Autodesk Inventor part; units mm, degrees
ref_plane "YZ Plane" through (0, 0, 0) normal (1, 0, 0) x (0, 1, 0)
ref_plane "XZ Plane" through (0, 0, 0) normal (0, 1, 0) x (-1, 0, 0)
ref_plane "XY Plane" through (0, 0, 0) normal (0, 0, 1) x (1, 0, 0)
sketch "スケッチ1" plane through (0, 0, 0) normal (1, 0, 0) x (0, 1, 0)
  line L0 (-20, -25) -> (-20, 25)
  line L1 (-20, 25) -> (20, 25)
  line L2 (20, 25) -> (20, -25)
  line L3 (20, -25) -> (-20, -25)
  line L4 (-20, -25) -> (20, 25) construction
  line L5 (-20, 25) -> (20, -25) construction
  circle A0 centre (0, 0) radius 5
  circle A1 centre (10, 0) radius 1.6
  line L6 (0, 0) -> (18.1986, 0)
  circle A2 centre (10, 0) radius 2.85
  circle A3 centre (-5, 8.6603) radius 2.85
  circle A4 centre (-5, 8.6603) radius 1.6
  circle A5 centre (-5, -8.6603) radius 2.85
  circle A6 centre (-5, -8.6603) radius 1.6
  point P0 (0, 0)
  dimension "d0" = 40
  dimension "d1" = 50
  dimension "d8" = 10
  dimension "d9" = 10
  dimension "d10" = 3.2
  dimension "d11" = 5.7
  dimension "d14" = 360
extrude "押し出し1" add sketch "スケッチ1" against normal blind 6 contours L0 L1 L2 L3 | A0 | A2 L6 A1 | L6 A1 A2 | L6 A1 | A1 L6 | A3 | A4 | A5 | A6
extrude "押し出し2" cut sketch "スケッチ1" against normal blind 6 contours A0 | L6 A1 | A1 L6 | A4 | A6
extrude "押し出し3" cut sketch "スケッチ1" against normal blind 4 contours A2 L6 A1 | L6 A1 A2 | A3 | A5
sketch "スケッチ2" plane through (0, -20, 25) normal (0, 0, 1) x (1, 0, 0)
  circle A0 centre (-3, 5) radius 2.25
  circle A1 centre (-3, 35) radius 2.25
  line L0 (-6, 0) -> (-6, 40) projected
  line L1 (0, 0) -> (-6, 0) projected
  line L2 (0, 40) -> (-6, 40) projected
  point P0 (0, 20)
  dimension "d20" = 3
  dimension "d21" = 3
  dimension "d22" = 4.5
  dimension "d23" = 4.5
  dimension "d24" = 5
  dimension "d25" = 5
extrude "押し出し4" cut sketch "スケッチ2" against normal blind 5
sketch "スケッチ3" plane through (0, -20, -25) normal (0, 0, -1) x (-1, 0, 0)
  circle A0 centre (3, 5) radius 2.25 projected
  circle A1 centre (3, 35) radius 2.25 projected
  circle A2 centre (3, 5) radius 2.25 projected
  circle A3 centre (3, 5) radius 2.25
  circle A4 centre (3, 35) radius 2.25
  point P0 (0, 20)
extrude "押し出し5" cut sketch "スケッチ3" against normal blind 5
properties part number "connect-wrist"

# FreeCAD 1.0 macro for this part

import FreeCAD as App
import Part
import Sketcher

V = App.Vector
Q = App.Units.Quantity

doc = App.newDocument("Part")
params = doc.addObject("Spreadsheet::Sheet", "Params")
for row, (alias, value) in enumerate([
    ("sketch1_width", "40 mm"),
    ("sketch1_height", "50 mm"),
    ("pad1_length", "6 mm"),
    ("sketch2_diameter", "10 mm"),
    ("sketch2_diameter2", "3.2 mm"),
    ("pocket1_length", "6 mm"),
    ("sketch3_diameter", "5.7 mm"),
    ("sketch3_diameter2", "3.2 mm"),
    ("pocket2_length", "4 mm"),
    ("sketch4_diameter", "4.5 mm"),
    ("pocket3_length", "5 mm"),
    ("sketch5_diameter", "4.5 mm"),
    ("pocket4_length", "5 mm"),
], start=1):
    params.set(f"A{row}", alias)
    params.set(f"B{row}", "=" + value)
    params.setAlias(f"B{row}", alias)

body = doc.addObject("PartDesign::Body", "Body")

# Sketch on YZ plane
sketch1 = body.newObject("Sketcher::SketchObject", "Sketch")
sketch1.AttachmentSupport = (doc.getObject("YZ_Plane"), [""])
sketch1.MapMode = "FlatFace"
sketch1.addGeometry(Part.LineSegment(V(-20, 25, 0), V(-20, -25, 0)), False)
sketch1.addGeometry(Part.LineSegment(V(-20, -25, 0), V(20, -25, 0)), False)
sketch1.addGeometry(Part.LineSegment(V(20, -25, 0), V(20, 25, 0)), False)
sketch1.addGeometry(Part.LineSegment(V(20, 25, 0), V(-20, 25, 0)), False)
sketch1.addConstraint(Sketcher.Constraint("Coincident", 0, 2, 1, 1))
sketch1.addConstraint(Sketcher.Constraint("Coincident", 1, 2, 2, 1))
sketch1.addConstraint(Sketcher.Constraint("Coincident", 2, 2, 3, 1))
sketch1.addConstraint(Sketcher.Constraint("Coincident", 3, 2, 0, 1))
sketch1.addConstraint(Sketcher.Constraint("Vertical", 0))
sketch1.addConstraint(Sketcher.Constraint("Horizontal", 1))
sketch1.addConstraint(Sketcher.Constraint("Vertical", 2))
sketch1.addConstraint(Sketcher.Constraint("Horizontal", 3))
sketch1.addConstraint(Sketcher.Constraint("Symmetric", 0, 2, 2, 2, -1, 1))
sketch1.addConstraint(Sketcher.Constraint("DistanceX", 1, 1, 1, 2, Q("40 mm")))
sketch1.addConstraint(Sketcher.Constraint("DistanceY", 0, 2, 0, 1, Q("50 mm")))
sketch1.setExpression("Constraints[9]", "Params.sketch1_width")
sketch1.setExpression("Constraints[10]", "Params.sketch1_height")
pad1 = body.newObject("PartDesign::Pad", "Pad")
pad1.Profile = sketch1
pad1.setExpression("Length", "Params.pad1_length")
pad1.Reversed = True

# Sketch on YZ plane
sketch2 = body.newObject("Sketcher::SketchObject", "Sketch001")
sketch2.AttachmentSupport = (doc.getObject("YZ_Plane"), [""])
sketch2.MapMode = "FlatFace"
sketch2.addGeometry(Part.Circle(V(0, 0, 0), V(0, 0, 1), 5), False)
sketch2.addGeometry(Part.Circle(V(10, 0, 0), V(0, 0, 1), 1.6), False)
sketch2.addGeometry(Part.Circle(V(-5, 8.7, 0), V(0, 0, 1), 1.6), False)
sketch2.addGeometry(Part.Circle(V(-5, -8.7, 0), V(0, 0, 1), 1.6), False)
sketch2.addConstraint(Sketcher.Constraint("Coincident", 0, 3, -1, 1))
sketch2.addConstraint(Sketcher.Constraint("Equal", 1, 2))
sketch2.addConstraint(Sketcher.Constraint("Equal", 2, 3))
sketch2.addConstraint(Sketcher.Constraint("Symmetric", 2, 3, 3, 3, -1))
sketch2.addConstraint(Sketcher.Constraint("PointOnObject", 1, 3, -1))
sketch2.addConstraint(Sketcher.Constraint("Diameter", 0, Q("10 mm")))
sketch2.addConstraint(Sketcher.Constraint("Diameter", 1, Q("3.2 mm")))
sketch2.addConstraint(Sketcher.Constraint("DistanceX", -1, 1, 1, 3, Q("10 mm")))
sketch2.addConstraint(Sketcher.Constraint("DistanceX", 2, 3, -1, 1, Q("5 mm")))
sketch2.addConstraint(Sketcher.Constraint("DistanceY", -1, 1, 2, 3, Q("8.6603 mm")))
sketch2.setExpression("Constraints[5]", "Params.sketch2_diameter")
sketch2.setExpression("Constraints[6]", "Params.sketch2_diameter2")
pocket1 = body.newObject("PartDesign::Pocket", "Pocket")
pocket1.Profile = sketch2
pocket1.setExpression("Length", "Params.pocket1_length")

# Sketch on YZ plane
sketch3 = body.newObject("Sketcher::SketchObject", "Sketch002")
sketch3.AttachmentSupport = (doc.getObject("YZ_Plane"), [""])
sketch3.MapMode = "FlatFace"
sketch3.addGeometry(Part.Circle(V(10, 0, 0), V(0, 0, 1), 2.9), False)
sketch3.addGeometry(Part.Circle(V(10, 0, 0), V(0, 0, 1), 1.6), False)
sketch3.addGeometry(Part.Circle(V(-5, 8.7, 0), V(0, 0, 1), 2.9), False)
sketch3.addGeometry(Part.Circle(V(-5, 8.7, 0), V(0, 0, 1), 1.6), False)
sketch3.addGeometry(Part.Circle(V(-5, -8.7, 0), V(0, 0, 1), 2.9), False)
sketch3.addGeometry(Part.Circle(V(-5, -8.7, 0), V(0, 0, 1), 1.6), False)
sketch3.addConstraint(Sketcher.Constraint("Coincident", 1, 3, 0, 3))
sketch3.addConstraint(Sketcher.Constraint("Coincident", 3, 3, 2, 3))
sketch3.addConstraint(Sketcher.Constraint("Coincident", 5, 3, 4, 3))
sketch3.addConstraint(Sketcher.Constraint("Equal", 0, 2))
sketch3.addConstraint(Sketcher.Constraint("Equal", 1, 3))
sketch3.addConstraint(Sketcher.Constraint("Equal", 2, 4))
sketch3.addConstraint(Sketcher.Constraint("Equal", 3, 5))
sketch3.addConstraint(Sketcher.Constraint("Symmetric", 2, 3, 4, 3, -1))
sketch3.addConstraint(Sketcher.Constraint("PointOnObject", 0, 3, -1))
sketch3.addConstraint(Sketcher.Constraint("Diameter", 0, Q("5.7 mm")))
sketch3.addConstraint(Sketcher.Constraint("Diameter", 1, Q("3.2 mm")))
sketch3.addConstraint(Sketcher.Constraint("DistanceX", -1, 1, 0, 3, Q("10 mm")))
sketch3.addConstraint(Sketcher.Constraint("DistanceX", 2, 3, -1, 1, Q("5 mm")))
sketch3.addConstraint(Sketcher.Constraint("DistanceY", -1, 1, 2, 3, Q("8.6603 mm")))
sketch3.setExpression("Constraints[9]", "Params.sketch3_diameter")
sketch3.setExpression("Constraints[10]", "Params.sketch3_diameter2")
pocket2 = body.newObject("PartDesign::Pocket", "Pocket001")
pocket2.Profile = sketch3
pocket2.setExpression("Length", "Params.pocket2_length")

# Sketch on XY plane
sketch4 = body.newObject("Sketcher::SketchObject", "Sketch003")
sketch4.AttachmentSupport = (doc.getObject("XY_Plane"), [""])
sketch4.MapMode = "FlatFace"
sketch4.AttachmentOffset = App.Placement(V(0, 0, 25), App.Rotation())
sketch4.addGeometry(Part.Circle(V(-3, -15, 0), V(0, 0, 1), 2.2), False)
sketch4.addGeometry(Part.Circle(V(-3, 15, 0), V(0, 0, 1), 2.2), False)
sketch4.addConstraint(Sketcher.Constraint("Equal", 0, 1))
sketch4.addConstraint(Sketcher.Constraint("Symmetric", 0, 3, 1, 3, -1))
sketch4.addConstraint(Sketcher.Constraint("Diameter", 0, Q("4.5 mm")))
sketch4.addConstraint(Sketcher.Constraint("DistanceX", 0, 3, -1, 1, Q("3 mm")))
sketch4.addConstraint(Sketcher.Constraint("DistanceY", 0, 3, -1, 1, Q("15 mm")))
sketch4.setExpression("Constraints[2]", "Params.sketch4_diameter")
pocket3 = body.newObject("PartDesign::Pocket", "Pocket002")
pocket3.Profile = sketch4
pocket3.setExpression("Length", "Params.pocket3_length")

# Sketch on XY plane
sketch5 = body.newObject("Sketcher::SketchObject", "Sketch004")
sketch5.AttachmentSupport = (doc.getObject("XY_Plane"), [""])
sketch5.MapMode = "FlatFace"
sketch5.AttachmentOffset = App.Placement(V(0, 0, -25), App.Rotation())
sketch5.addGeometry(Part.Circle(V(-3, -15, 0), V(0, 0, 1), 2.2), False)
sketch5.addGeometry(Part.Circle(V(-3, 15, 0), V(0, 0, 1), 2.2), False)
sketch5.addConstraint(Sketcher.Constraint("Equal", 0, 1))
sketch5.addConstraint(Sketcher.Constraint("Symmetric", 0, 3, 1, 3, -1))
sketch5.addConstraint(Sketcher.Constraint("Diameter", 0, Q("4.5 mm")))
sketch5.addConstraint(Sketcher.Constraint("DistanceX", 0, 3, -1, 1, Q("3 mm")))
sketch5.addConstraint(Sketcher.Constraint("DistanceY", 0, 3, -1, 1, Q("15 mm")))
sketch5.setExpression("Constraints[2]", "Params.sketch5_diameter")
pocket4 = body.newObject("PartDesign::Pocket", "Pocket003")
pocket4.Profile = sketch5
pocket4.setExpression("Length", "Params.pocket4_length")
pocket4.Reversed = True

doc.recompute()
